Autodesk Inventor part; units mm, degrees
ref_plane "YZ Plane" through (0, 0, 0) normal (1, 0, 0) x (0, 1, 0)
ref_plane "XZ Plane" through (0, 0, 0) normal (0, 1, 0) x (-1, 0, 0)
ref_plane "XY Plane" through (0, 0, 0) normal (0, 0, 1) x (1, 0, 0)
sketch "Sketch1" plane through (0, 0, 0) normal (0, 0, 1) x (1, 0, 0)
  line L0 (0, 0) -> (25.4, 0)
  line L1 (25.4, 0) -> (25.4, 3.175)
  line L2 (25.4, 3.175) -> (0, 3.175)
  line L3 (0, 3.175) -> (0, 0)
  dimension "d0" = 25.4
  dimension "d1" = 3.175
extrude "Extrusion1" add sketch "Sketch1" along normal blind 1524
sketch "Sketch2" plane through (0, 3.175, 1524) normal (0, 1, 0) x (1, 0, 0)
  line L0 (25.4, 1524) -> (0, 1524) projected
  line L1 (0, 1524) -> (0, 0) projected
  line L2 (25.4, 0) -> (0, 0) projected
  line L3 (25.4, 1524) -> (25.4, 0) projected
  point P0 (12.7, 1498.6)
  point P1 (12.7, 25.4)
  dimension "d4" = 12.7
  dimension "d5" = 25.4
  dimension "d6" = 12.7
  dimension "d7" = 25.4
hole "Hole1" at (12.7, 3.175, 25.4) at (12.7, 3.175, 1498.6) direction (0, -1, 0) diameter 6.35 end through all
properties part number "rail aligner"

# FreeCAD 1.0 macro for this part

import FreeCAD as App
import Part
import Sketcher

V = App.Vector
Q = App.Units.Quantity


def add_polygon(sketch, points):
    """Adds a closed chain of lines whose ends are joined by coincident constraints."""
    first, n = sketch.GeometryCount, len(points)
    for a, b in zip(points, points[1:] + points[:1]):
        sketch.addGeometry(Part.LineSegment(App.Vector(*a, 0), App.Vector(*b, 0)), False)
    for i in range(n):
        sketch.addConstraint(Sketcher.Constraint("Coincident", first + i, 2, first + (i + 1) % n, 1))

doc = App.newDocument("Part")
body = doc.addObject("PartDesign::Body", "Body")

sketch1 = body.newObject("Sketcher::SketchObject", "Sketch")
sketch1.AttachmentSupport = (doc.getObject("XY_Plane"), [""])
sketch1.MapMode = "FlatFace"
add_polygon(sketch1, [(0, 3.2), (0, 0), (25.4, 0), (25.4, 3.2)])
sketch1.addConstraint([
    Sketcher.Constraint("Vertical", 0),
    Sketcher.Constraint("Horizontal", 1),
    Sketcher.Constraint("Vertical", 2),
    Sketcher.Constraint("Horizontal", 3),
    Sketcher.Constraint("Coincident", 0, 2, -1, 1),
    Sketcher.Constraint("DistanceX", 1, 1, 1, 2, Q("1 in")),
    Sketcher.Constraint("DistanceY", 0, 2, 0, 1, Q("0.125 in")),
])
pad1 = body.newObject("PartDesign::Pad", "Pad")
pad1.Profile = sketch1
pad1.Length = Q("60 in")

sketch2 = body.newObject("Sketcher::SketchObject", "Sketch001")
sketch2.AttachmentSupport = (doc.getObject("XZ_Plane"), [""])
sketch2.MapMode = "FlatFace"
sketch2.AttachmentOffset = App.Placement(V(0, 0, -0.125 * 25.4), App.Rotation())
sketch2.addGeometry([
    Part.Circle(V(12.7, 25.4, 0), V(0, 0, 1), 3.2),
    Part.Circle(V(12.7, 1498.6, 0), V(0, 0, 1), 3.2),
], False)
sketch2.addConstraint([
    Sketcher.Constraint("Equal", 0, 1),
    Sketcher.Constraint("Vertical", 0, 3, 1, 3),
    Sketcher.Constraint("Diameter", 0, Q("0.25 in")),
    Sketcher.Constraint("DistanceY", -1, 1, 0, 3, Q("1 in")),
    Sketcher.Constraint("DistanceY", -1, 1, 1, 3, Q("59 in")),
    Sketcher.Constraint("DistanceX", -1, 1, 0, 3, Q("0.5 in")),
])
doc.recompute()
hole = body.newObject("PartDesign::Hole", "Hole")
hole.Profile = sketch2
hole.ThreadType = "None"
hole.Diameter = Q("0.25 in")
hole.DepthType = "ThroughAll"
hole.Reversed = True

doc.recompute()
